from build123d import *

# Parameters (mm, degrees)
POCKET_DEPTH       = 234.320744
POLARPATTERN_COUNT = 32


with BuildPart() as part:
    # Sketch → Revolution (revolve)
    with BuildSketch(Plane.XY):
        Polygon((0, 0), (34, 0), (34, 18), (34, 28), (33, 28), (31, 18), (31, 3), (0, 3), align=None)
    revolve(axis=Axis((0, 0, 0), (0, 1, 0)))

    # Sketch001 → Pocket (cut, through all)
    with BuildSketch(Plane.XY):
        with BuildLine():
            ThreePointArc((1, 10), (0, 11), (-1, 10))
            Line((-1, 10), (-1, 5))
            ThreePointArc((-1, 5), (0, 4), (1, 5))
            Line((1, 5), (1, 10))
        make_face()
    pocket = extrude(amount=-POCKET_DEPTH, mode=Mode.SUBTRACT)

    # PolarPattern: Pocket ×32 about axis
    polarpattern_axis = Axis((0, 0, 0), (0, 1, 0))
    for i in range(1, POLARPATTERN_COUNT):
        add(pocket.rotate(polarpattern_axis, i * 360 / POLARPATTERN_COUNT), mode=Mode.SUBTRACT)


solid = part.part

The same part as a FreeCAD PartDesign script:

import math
import FreeCAD as App
import Part
import Sketcher
from FreeCAD import Vector

doc = App.newDocument("Part")
params = doc.addObject("Spreadsheet::Sheet", "Params")
for row, (alias, value) in enumerate([
    ("sketch1_width", "34 mm"),
    ("sketch1_width2", "1 mm"),
    ("sketch1_width3", "31 mm"),
    ("sketch1_height", "28 mm"),
    ("sketch1_height2", "15 mm"),
    ("revolution_angle", "360 deg"),
    ("sketch2_radius", "1 mm"),
    ("sketch2_height", "5 mm"),
], start=1):
    params.set(f"A{row}", alias)
    params.set(f"B{row}", "=" + value)
    params.setAlias(f"B{row}", alias)

body = doc.addObject("PartDesign::Body", "Body")

sketch1 = body.newObject("Sketcher::SketchObject", "Sketch")
sketch1.AttachmentSupport = (doc.getObject("XY_Plane"), [""])
sketch1.MapMode = "FlatFace"
sketch1.addGeometry(Part.LineSegment(Vector(0, 0, 0), Vector(34, 0, 0)), False)
sketch1.addGeometry(Part.LineSegment(Vector(34, 0, 0), Vector(34, 28, 0)), False)
sketch1.addGeometry(Part.LineSegment(Vector(34, 28, 0), Vector(33, 28, 0)), False)
sketch1.addGeometry(Part.LineSegment(Vector(33, 28, 0), Vector(31, 18, 0)), False)
sketch1.addGeometry(Part.LineSegment(Vector(31, 18, 0), Vector(31, 3, 0)), False)
sketch1.addGeometry(Part.LineSegment(Vector(31, 3, 0), Vector(0, 3, 0)), False)
sketch1.addGeometry(Part.LineSegment(Vector(0, 3, 0), Vector(0, 0, 0)), False)
sketch1.addConstraint(Sketcher.Constraint("Coincident", 0, 2, 1, 1))
sketch1.addConstraint(Sketcher.Constraint("Coincident", 1, 2, 2, 1))
sketch1.addConstraint(Sketcher.Constraint("Coincident", 2, 2, 3, 1))
sketch1.addConstraint(Sketcher.Constraint("Coincident", 3, 2, 4, 1))
sketch1.addConstraint(Sketcher.Constraint("Coincident", 4, 2, 5, 1))
sketch1.addConstraint(Sketcher.Constraint("Coincident", 5, 2, 6, 1))
sketch1.addConstraint(Sketcher.Constraint("Coincident", 6, 2, 0, 1))
sketch1.addConstraint(Sketcher.Constraint("Horizontal", 0))
sketch1.addConstraint(Sketcher.Constraint("Vertical", 1))
sketch1.addConstraint(Sketcher.Constraint("Horizontal", 2))
sketch1.addConstraint(Sketcher.Constraint("Vertical", 4))
sketch1.addConstraint(Sketcher.Constraint("Horizontal", 5))
sketch1.addConstraint(Sketcher.Constraint("Vertical", 6))
sketch1.addConstraint(Sketcher.Constraint("Coincident", 6, 2, -1, 1))
sketch1.addConstraint(Sketcher.Constraint("DistanceX", 0, 1, 0, 2, 34.0))
sketch1.addConstraint(Sketcher.Constraint("DistanceX", 2, 2, 2, 1, 1.0))
sketch1.addConstraint(Sketcher.Constraint("DistanceX", 5, 2, 5, 1, 31.0))
sketch1.addConstraint(Sketcher.Constraint("DistanceY", 1, 1, 1, 2, 28.0))
sketch1.addConstraint(Sketcher.Constraint("DistanceY", 4, 2, 4, 1, 15.0))
sketch1.addConstraint(Sketcher.Constraint("DistanceY", 6, 2, 6, 1, 3.0))
sketch1.setExpression("Constraints[14]", "Params.sketch1_width")
sketch1.setExpression("Constraints[15]", "Params.sketch1_width2")
sketch1.setExpression("Constraints[16]", "Params.sketch1_width3")
sketch1.setExpression("Constraints[17]", "Params.sketch1_height")
sketch1.setExpression("Constraints[18]", "Params.sketch1_height2")
revolution = body.newObject("PartDesign::Revolution", "Revolution")
revolution.Profile = sketch1
revolution.ReferenceAxis = (sketch1, ["V_Axis"])
revolution.setExpression("Angle", "Params.revolution_angle")

sketch2 = body.newObject("Sketcher::SketchObject", "Sketch001")
sketch2.AttachmentSupport = (doc.getObject("XY_Plane"), [""])
sketch2.MapMode = "FlatFace"
sketch2.addGeometry(Part.ArcOfCircle(Part.Circle(Vector(0, 10, 0), Vector(0, 0, 1), 1), math.radians(0), math.radians(180)), False)
sketch2.addGeometry(Part.LineSegment(Vector(-1, 10, 0), Vector(-1, 5, 0)), False)
sketch2.addGeometry(Part.ArcOfCircle(Part.Circle(Vector(0, 5, 0), Vector(0, 0, 1), 1), math.radians(180), math.radians(360)), False)
sketch2.addGeometry(Part.LineSegment(Vector(1, 5, 0), Vector(1, 10, 0)), False)
sketch2.addConstraint(Sketcher.Constraint("Tangent", 0, 2, 1, 1))
sketch2.addConstraint(Sketcher.Constraint("Tangent", 1, 2, 2, 1))
sketch2.addConstraint(Sketcher.Constraint("Tangent", 2, 2, 3, 1))
sketch2.addConstraint(Sketcher.Constraint("Tangent", 3, 2, 0, 1))
sketch2.addConstraint(Sketcher.Constraint("Vertical", 1))
sketch2.addConstraint(Sketcher.Constraint("Vertical", 3))
sketch2.addConstraint(Sketcher.Constraint("PointOnObject", 0, 3, -2))
sketch2.addConstraint(Sketcher.Constraint("Radius", 0, 1.0))
sketch2.addConstraint(Sketcher.Constraint("DistanceY", 1, 2, 1, 1, 5.0))
sketch2.addConstraint(Sketcher.Constraint("DistanceY", -1, 1, 0, 3, 10.0))
sketch2.setExpression("Constraints[7]", "Params.sketch2_radius")
sketch2.setExpression("Constraints[8]", "Params.sketch2_height")
pocket1 = body.newObject("PartDesign::Pocket", "Pocket")
pocket1.Profile = sketch2
pocket1.Type = "ThroughAll"
doc.recompute()

polarpattern = body.newObject("PartDesign::PolarPattern", "PolarPattern")
polarpattern.Originals = [pocket1]
polarpattern.Axis = (doc.getObject("Y_Axis"), [""])
polarpattern.Angle = 360
polarpattern.Occurrences = 32
body.Tip = polarpattern

doc.recompute()
